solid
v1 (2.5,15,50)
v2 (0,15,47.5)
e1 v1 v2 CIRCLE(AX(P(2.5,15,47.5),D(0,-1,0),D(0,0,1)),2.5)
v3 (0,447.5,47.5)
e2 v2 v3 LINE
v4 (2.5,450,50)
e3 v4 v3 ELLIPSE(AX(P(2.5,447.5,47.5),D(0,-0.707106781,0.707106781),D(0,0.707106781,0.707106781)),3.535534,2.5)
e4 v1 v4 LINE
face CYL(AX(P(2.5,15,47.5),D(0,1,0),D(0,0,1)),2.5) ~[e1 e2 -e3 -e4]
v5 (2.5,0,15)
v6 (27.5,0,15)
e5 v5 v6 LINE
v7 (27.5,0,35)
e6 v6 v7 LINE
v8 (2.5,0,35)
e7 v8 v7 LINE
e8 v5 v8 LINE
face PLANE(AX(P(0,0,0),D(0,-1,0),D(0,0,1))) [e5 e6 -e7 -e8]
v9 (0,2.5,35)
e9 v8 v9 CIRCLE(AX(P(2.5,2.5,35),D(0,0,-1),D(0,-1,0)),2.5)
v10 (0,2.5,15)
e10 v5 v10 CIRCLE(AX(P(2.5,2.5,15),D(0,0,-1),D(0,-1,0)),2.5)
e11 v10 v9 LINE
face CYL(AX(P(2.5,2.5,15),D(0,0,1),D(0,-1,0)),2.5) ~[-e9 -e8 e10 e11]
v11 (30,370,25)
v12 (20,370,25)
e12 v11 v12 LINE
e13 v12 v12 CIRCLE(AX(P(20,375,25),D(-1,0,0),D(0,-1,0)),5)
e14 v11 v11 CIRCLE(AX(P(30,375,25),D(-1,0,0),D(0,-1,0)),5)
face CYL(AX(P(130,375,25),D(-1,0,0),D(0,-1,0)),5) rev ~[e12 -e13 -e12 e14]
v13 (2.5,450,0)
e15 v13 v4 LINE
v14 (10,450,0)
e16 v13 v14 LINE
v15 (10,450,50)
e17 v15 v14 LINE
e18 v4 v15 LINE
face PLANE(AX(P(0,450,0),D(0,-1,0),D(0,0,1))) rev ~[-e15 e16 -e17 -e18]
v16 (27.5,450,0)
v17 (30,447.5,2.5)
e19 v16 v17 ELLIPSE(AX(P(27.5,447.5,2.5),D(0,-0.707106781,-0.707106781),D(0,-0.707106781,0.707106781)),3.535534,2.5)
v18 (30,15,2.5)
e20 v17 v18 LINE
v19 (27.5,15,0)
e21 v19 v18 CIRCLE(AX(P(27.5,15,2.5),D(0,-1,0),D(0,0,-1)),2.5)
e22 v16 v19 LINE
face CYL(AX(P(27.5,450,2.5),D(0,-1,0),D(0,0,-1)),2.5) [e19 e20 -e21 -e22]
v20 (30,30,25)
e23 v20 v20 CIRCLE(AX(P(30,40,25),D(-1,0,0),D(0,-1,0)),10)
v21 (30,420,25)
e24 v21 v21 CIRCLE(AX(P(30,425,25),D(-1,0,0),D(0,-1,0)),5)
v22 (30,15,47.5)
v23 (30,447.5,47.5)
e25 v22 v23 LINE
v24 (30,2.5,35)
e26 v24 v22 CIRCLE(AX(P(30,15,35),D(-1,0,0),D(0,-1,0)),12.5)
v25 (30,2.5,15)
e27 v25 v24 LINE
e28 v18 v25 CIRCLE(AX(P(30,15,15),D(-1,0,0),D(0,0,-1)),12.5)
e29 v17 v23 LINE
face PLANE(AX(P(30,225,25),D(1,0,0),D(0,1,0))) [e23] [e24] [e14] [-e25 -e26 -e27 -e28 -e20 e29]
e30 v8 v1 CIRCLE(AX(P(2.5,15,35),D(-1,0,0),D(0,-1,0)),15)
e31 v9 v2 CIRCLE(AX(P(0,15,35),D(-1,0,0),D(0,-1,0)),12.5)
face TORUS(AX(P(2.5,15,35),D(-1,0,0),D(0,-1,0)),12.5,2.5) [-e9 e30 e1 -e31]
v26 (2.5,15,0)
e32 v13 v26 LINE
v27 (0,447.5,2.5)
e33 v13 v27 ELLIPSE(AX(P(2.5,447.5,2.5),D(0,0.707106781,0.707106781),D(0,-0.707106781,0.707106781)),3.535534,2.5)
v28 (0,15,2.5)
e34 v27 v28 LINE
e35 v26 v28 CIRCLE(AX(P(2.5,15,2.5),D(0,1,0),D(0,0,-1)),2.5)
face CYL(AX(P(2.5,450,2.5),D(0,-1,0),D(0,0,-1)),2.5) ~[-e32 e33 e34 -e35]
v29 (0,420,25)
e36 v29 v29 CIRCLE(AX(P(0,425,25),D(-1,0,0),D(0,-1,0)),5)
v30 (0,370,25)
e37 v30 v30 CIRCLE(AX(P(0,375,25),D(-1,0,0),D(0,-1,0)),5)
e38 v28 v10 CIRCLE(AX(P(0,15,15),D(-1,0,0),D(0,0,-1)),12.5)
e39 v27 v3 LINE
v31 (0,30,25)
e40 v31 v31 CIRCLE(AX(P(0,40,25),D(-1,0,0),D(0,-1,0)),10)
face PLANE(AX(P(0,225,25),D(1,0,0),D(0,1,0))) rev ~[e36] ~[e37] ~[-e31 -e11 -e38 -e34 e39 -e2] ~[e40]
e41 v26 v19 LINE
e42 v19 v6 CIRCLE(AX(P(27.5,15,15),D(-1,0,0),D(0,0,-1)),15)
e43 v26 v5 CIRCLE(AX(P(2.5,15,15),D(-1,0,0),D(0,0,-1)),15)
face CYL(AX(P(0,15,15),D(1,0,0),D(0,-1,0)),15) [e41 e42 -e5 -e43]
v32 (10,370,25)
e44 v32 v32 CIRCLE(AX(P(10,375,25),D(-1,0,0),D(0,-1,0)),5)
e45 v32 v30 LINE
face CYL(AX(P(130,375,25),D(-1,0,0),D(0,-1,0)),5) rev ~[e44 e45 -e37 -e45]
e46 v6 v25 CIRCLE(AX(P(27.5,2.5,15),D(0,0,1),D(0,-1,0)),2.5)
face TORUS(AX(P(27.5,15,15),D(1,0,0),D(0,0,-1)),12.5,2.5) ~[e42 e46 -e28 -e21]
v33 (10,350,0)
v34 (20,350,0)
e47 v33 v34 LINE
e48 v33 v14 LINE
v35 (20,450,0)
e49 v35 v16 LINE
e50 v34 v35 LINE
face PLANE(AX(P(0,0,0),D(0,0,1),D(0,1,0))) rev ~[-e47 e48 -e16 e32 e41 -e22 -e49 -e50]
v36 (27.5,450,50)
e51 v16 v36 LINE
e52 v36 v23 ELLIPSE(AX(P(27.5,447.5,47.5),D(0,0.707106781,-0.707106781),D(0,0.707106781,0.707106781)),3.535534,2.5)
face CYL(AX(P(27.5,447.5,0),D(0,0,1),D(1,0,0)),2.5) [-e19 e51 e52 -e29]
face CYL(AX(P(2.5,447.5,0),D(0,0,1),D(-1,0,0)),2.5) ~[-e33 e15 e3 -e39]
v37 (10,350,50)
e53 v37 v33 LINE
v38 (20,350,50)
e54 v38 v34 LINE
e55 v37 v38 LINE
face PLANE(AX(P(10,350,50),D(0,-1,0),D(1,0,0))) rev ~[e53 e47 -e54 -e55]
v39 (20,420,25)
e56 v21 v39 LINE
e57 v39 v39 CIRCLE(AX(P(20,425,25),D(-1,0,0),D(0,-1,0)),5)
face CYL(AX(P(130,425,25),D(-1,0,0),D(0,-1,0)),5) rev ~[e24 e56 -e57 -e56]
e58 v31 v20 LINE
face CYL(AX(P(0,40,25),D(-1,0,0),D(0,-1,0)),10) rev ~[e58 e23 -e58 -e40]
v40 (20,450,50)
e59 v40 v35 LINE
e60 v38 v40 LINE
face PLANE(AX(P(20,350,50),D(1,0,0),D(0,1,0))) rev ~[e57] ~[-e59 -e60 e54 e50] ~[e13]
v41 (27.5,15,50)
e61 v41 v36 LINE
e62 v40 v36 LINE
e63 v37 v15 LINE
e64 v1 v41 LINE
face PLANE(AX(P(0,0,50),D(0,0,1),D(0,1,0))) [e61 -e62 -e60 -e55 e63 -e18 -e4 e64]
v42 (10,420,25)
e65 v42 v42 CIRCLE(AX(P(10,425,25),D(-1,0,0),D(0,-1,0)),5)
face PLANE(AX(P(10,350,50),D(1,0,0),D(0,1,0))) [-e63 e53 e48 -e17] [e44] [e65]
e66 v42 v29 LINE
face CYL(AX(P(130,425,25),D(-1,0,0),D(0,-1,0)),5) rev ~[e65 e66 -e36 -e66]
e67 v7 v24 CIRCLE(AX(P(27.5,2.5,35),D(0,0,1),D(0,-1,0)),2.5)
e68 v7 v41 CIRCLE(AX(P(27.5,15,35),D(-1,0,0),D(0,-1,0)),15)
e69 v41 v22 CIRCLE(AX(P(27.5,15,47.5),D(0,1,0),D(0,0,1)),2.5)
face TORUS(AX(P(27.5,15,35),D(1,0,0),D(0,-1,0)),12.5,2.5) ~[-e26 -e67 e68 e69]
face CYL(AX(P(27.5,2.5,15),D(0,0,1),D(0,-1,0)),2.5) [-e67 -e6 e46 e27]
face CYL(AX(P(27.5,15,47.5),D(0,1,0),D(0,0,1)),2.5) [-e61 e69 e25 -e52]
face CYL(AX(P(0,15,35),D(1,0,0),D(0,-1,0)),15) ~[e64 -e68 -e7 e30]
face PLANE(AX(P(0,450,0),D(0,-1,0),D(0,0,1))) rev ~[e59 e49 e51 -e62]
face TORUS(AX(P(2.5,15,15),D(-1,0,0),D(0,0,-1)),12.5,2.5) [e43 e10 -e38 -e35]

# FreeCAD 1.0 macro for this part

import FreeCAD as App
import Part
import Sketcher

V = App.Vector
Q = App.Units.Quantity


def edges_at(feature, points):
    """Names of the edges that pass closest to the given points."""
    edges = feature.Shape.Edges
    near = lambda p: min(range(len(edges)), key=lambda i: edges[i].distToShape(Part.Vertex(*p))[0])
    return sorted({f"Edge{near(p) + 1}" for p in points})


def add_polygon(sketch, points):
    """Adds a closed chain of lines whose ends are joined by coincident constraints."""
    first, n = sketch.GeometryCount, len(points)
    for a, b in zip(points, points[1:] + points[:1]):
        sketch.addGeometry(Part.LineSegment(App.Vector(*a, 0), App.Vector(*b, 0)), False)
    for i in range(n):
        sketch.addConstraint(Sketcher.Constraint("Coincident", first + i, 2, first + (i + 1) % n, 1))

doc = App.newDocument("Part")
body = doc.addObject("PartDesign::Body", "Body")

sketch1 = body.newObject("Sketcher::SketchObject", "Sketch")
sketch1.AttachmentSupport = (doc.getObject("YZ_Plane"), [""])
sketch1.MapMode = "FlatFace"
add_polygon(sketch1, [(0, 50), (0, 0), (450, 0), (450, 50)])
sketch1.addConstraint([
    Sketcher.Constraint("Vertical", 0),
    Sketcher.Constraint("Horizontal", 1),
    Sketcher.Constraint("Vertical", 2),
    Sketcher.Constraint("Horizontal", 3),
    Sketcher.Constraint("Coincident", 0, 2, -1, 1),
    Sketcher.Constraint("DistanceX", 1, 1, 1, 2, Q("450 mm")),
    Sketcher.Constraint("DistanceY", 0, 2, 0, 1, Q("50 mm")),
])
pad1 = body.newObject("PartDesign::Pad", "Pad")
pad1.Profile = sketch1
pad1.Length = 30
doc.recompute()

fillet = body.newObject("PartDesign::Fillet", "Fillet")
fillet.Base = (pad1, edges_at(pad1, [(15, 0, 50), (15, 0, 0)]))
fillet.Radius = 15

sketch2 = body.newObject("Sketcher::SketchObject", "Sketch001")
sketch2.AttachmentSupport = (doc.getObject("XY_Plane"), [""])
sketch2.MapMode = "FlatFace"
sketch2.AttachmentOffset = App.Placement(V(0, 0, 50), App.Rotation())
add_polygon(sketch2, [(10, 450), (10, 350), (20, 350), (20, 450)])
sketch2.addConstraint([
    Sketcher.Constraint("Vertical", 0),
    Sketcher.Constraint("Horizontal", 1),
    Sketcher.Constraint("Vertical", 2),
    Sketcher.Constraint("Horizontal", 3),
    Sketcher.Constraint("DistanceX", 1, 1, 1, 2, Q("10 mm")),
    Sketcher.Constraint("DistanceY", 0, 2, 0, 1, Q("100 mm")),
    Sketcher.Constraint("DistanceX", -1, 1, 0, 2, Q("10 mm")),
    Sketcher.Constraint("DistanceY", -1, 1, 0, 2, Q("350 mm")),
])
pocket1 = body.newObject("PartDesign::Pocket", "Pocket")
pocket1.Profile = sketch2
pocket1.Type = "ThroughAll"
doc.recompute()

fillet2 = body.newObject("PartDesign::Fillet", "Fillet001")
fillet2.Base = (pocket1, edges_at(pocket1, [
    (30, 0, 25),
    (30, 4.393, 45.607),
    (30, 4.393, 4.393),
    (30, 232.5, 50),
    (30, 232.5, 0),
    (30, 450, 25),
    (0, 0, 25),
    (0, 4.393, 45.607),
    (0, 4.393, 4.393),
    (0, 232.5, 50),
    (0, 232.5, 0),
    (0, 450, 25),
]))
fillet2.Radius = 2.5

sketch3 = body.newObject("Sketcher::SketchObject", "Sketch002")
sketch3.AttachmentSupport = (doc.getObject("YZ_Plane"), [""])
sketch3.MapMode = "FlatFace"
sketch3.AttachmentOffset = App.Placement(V(0, 0, 30), App.Rotation())
sketch3.addGeometry([
    Part.Circle(V(375, 25, 0), V(0, 0, 1), 5),
    Part.Circle(V(425, 25, 0), V(0, 0, 1), 5),
], False)
sketch3.addConstraint([
    Sketcher.Constraint("Equal", 0, 1),
    Sketcher.Constraint("Horizontal", 0, 3, 1, 3),
    Sketcher.Constraint("Diameter", 0, Q("10 mm")),
    Sketcher.Constraint("DistanceX", -1, 1, 0, 3, Q("375 mm")),
    Sketcher.Constraint("DistanceY", -1, 1, 0, 3, Q("25 mm")),
    Sketcher.Constraint("DistanceX", -1, 1, 1, 3, Q("425 mm")),
])
doc.recompute()
hole = body.newObject("PartDesign::Hole", "Hole")
hole.Profile = sketch3
hole.ThreadType = "None"
hole.Diameter = 10
hole.DepthType = "Dimension"
hole.Depth = 100
hole.DrillPoint = "Flat"

sketch4 = body.newObject("Sketcher::SketchObject", "Sketch003")
sketch4.AttachmentSupport = (doc.getObject("YZ_Plane"), [""])
sketch4.MapMode = "FlatFace"
sketch4.addGeometry(Part.Circle(V(40, 25, 0), V(0, 0, 1), 10), False)
sketch4.addConstraint([
    Sketcher.Constraint("Diameter", 0, Q("20 mm")),
    Sketcher.Constraint("DistanceX", -1, 1, 0, 3, Q("40 mm")),
    Sketcher.Constraint("DistanceY", -1, 1, 0, 3, Q("25 mm")),
])
pocket2 = body.newObject("PartDesign::Pocket", "Pocket001")
pocket2.Profile = sketch4
pocket2.Type = "ThroughAll"
pocket2.Reversed = True

doc.recompute()
